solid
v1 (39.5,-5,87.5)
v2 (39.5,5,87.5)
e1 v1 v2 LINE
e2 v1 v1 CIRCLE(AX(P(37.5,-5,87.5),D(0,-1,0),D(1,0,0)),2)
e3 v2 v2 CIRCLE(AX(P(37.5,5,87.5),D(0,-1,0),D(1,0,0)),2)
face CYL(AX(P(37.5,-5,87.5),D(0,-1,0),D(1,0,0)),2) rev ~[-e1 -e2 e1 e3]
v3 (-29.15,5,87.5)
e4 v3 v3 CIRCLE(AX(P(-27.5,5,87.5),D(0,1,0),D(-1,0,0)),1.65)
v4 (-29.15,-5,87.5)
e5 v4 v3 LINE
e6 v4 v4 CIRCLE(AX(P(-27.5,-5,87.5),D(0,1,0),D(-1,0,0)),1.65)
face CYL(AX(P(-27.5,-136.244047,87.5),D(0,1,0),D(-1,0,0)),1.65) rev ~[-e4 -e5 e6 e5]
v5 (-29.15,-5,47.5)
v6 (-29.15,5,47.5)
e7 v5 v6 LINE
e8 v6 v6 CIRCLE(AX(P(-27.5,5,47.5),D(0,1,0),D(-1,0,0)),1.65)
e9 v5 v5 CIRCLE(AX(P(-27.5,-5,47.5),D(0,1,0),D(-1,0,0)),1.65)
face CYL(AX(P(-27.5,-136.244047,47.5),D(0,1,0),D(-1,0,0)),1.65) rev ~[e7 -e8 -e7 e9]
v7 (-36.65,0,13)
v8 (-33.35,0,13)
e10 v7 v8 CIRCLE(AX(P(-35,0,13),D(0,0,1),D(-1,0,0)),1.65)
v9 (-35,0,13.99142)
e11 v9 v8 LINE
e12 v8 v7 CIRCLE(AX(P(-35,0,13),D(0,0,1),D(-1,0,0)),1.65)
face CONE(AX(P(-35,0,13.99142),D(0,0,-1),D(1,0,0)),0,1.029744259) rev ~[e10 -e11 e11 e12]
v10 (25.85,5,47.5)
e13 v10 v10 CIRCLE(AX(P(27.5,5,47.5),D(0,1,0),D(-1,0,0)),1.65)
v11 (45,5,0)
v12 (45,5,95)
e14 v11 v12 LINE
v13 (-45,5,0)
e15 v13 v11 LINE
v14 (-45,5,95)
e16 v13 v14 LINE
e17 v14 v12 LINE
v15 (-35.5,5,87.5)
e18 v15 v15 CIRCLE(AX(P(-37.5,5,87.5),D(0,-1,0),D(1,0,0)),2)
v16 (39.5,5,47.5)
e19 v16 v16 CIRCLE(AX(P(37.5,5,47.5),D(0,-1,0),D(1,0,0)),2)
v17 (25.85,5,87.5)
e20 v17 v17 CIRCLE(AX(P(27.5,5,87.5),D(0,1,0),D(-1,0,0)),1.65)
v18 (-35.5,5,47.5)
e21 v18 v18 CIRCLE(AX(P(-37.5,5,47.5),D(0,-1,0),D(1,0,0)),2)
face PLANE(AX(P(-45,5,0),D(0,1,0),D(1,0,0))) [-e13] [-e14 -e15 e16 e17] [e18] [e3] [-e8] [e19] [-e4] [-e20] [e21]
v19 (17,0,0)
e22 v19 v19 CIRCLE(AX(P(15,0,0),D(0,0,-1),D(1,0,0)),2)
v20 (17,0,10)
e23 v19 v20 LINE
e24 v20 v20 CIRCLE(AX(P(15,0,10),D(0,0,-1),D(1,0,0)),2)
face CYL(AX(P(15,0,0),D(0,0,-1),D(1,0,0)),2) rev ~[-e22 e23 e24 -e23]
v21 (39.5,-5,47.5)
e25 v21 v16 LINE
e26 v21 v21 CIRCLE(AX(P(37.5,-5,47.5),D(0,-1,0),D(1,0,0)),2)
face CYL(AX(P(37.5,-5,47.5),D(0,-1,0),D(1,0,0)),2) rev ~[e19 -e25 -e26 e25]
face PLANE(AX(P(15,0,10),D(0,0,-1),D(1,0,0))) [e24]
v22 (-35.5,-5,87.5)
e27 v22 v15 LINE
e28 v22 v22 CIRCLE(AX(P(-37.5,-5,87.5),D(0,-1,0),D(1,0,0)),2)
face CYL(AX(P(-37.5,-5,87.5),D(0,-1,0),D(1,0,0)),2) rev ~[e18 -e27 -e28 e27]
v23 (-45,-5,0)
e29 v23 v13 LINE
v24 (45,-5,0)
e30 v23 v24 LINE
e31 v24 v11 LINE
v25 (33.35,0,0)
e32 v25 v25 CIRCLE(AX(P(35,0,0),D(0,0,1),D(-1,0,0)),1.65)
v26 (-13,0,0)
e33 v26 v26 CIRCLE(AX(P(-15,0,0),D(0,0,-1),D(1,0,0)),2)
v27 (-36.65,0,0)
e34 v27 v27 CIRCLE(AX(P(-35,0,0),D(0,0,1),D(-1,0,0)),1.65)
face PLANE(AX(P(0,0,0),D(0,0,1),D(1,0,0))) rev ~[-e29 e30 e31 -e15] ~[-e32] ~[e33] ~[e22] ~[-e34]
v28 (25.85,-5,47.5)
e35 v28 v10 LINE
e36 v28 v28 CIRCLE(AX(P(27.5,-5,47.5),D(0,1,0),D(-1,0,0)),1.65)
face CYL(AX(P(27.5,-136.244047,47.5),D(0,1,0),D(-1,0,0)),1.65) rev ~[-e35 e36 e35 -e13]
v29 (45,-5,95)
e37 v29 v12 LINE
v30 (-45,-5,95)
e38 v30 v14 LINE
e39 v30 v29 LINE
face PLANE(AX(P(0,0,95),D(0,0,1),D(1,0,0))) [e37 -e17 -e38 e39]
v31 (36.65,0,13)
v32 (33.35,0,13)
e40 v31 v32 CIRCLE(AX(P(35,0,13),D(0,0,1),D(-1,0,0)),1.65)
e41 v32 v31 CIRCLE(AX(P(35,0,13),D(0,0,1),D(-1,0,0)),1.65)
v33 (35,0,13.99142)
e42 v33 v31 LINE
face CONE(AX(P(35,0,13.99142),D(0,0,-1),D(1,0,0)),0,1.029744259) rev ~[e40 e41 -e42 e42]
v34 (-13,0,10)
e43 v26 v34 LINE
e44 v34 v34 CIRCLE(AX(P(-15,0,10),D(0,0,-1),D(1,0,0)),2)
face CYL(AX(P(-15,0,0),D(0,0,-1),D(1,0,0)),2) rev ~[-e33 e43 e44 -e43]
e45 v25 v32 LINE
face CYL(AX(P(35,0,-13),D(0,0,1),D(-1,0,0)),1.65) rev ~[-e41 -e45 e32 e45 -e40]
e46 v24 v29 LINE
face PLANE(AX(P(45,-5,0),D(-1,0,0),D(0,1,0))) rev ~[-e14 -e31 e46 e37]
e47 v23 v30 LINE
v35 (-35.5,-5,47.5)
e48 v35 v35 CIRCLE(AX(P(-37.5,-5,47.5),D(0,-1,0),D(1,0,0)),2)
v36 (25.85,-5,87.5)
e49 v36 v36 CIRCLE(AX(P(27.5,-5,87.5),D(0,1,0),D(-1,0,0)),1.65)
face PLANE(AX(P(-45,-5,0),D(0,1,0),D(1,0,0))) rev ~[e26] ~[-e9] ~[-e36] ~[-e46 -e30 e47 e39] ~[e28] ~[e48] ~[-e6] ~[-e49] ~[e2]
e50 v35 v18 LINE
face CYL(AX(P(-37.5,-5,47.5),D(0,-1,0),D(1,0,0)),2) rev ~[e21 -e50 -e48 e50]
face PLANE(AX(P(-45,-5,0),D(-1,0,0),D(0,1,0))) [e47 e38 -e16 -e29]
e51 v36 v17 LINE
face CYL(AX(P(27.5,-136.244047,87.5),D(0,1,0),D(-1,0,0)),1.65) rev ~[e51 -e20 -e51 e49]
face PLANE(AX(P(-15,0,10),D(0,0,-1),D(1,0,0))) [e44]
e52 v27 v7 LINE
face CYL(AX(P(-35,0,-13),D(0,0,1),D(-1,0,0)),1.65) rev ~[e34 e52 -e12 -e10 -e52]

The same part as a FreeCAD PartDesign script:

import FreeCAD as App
import Part
import Sketcher
Q = App.Units.Quantity


def add_polygon(sketch, points):
    """Adds a closed chain of lines whose ends are joined by coincident constraints."""
    first, n = sketch.GeometryCount, len(points)
    for a, b in zip(points, points[1:] + points[:1]):
        sketch.addGeometry(Part.LineSegment(App.Vector(*a, 0), App.Vector(*b, 0)), False)
    for i in range(n):
        sketch.addConstraint(Sketcher.Constraint("Coincident", first + i, 2, first + (i + 1) % n, 1))

doc = App.newDocument("Part")
body = doc.addObject("PartDesign::Body", "Body")

# Sketch on XY plane
sketch1 = doc.addObject("Sketcher::SketchObject", "Sketch")
body.addObject(sketch1)
sketch1.AttachmentSupport = (doc.XY_Plane, [""])
sketch1.MapMode = "FlatFace"
add_polygon(sketch1, [(-45, 5), (-45, -5), (45, -5), (45, 5)])  # lines 0-3
sketch1.addConstraint(Sketcher.Constraint("Vertical", 0))
sketch1.addConstraint(Sketcher.Constraint("Horizontal", 1))
sketch1.addConstraint(Sketcher.Constraint("Vertical", 2))
sketch1.addConstraint(Sketcher.Constraint("Horizontal", 3))
sketch1.addConstraint(Sketcher.Constraint("Symmetric", 0, 2, 2, 2, -1, 1))
sketch1.addConstraint(Sketcher.Constraint("DistanceX", 1, 1, 1, 2, Q("90 mm")))
sketch1.addConstraint(Sketcher.Constraint("DistanceY", 0, 2, 0, 1, Q("10 mm")))
pad1 = doc.addObject("PartDesign::Pad", "Pad")
body.addObject(pad1)
pad1.Profile = sketch1
pad1.Length = 95

# Sketch on XY plane
sketch2 = doc.addObject("Sketcher::SketchObject", "Sketch001")
body.addObject(sketch2)
sketch2.AttachmentSupport = (doc.XY_Plane, [""])
sketch2.MapMode = "FlatFace"
sketch2.addGeometry(Part.Circle(App.Vector(-15, 0, 0), App.Vector(0, 0, 1), 2), False)
sketch2.addGeometry(Part.Circle(App.Vector(15, 0, 0), App.Vector(0, 0, 1), 2), False)
sketch2.addConstraint(Sketcher.Constraint("Equal", 0, 1))
sketch2.addConstraint(Sketcher.Constraint("Symmetric", 0, 3, 1, 3, -1, 1))
sketch2.addConstraint(Sketcher.Constraint("PointOnObject", 0, 3, -1))
sketch2.addConstraint(Sketcher.Constraint("Diameter", 0, Q("4 mm")))
sketch2.addConstraint(Sketcher.Constraint("DistanceX", 0, 3, -1, 1, Q("15 mm")))
pocket1 = doc.addObject("PartDesign::Pocket", "Pocket")
body.addObject(pocket1)
pocket1.Profile = sketch2
pocket1.Length = 10
pocket1.Reversed = True

# Sketch on XY plane
sketch3 = doc.addObject("Sketcher::SketchObject", "Sketch002")
body.addObject(sketch3)
sketch3.AttachmentSupport = (doc.XY_Plane, [""])
sketch3.MapMode = "FlatFace"
sketch3.addGeometry(Part.Circle(App.Vector(-35, 0, 0), App.Vector(0, 0, 1), 1.6), False)
sketch3.addGeometry(Part.Circle(App.Vector(35, 0, 0), App.Vector(0, 0, 1), 1.6), False)
sketch3.addConstraint(Sketcher.Constraint("Equal", 0, 1))
sketch3.addConstraint(Sketcher.Constraint("Symmetric", 0, 3, 1, 3, -1, 1))
sketch3.addConstraint(Sketcher.Constraint("PointOnObject", 0, 3, -1))
sketch3.addConstraint(Sketcher.Constraint("Diameter", 0, Q("3.3 mm")))
sketch3.addConstraint(Sketcher.Constraint("DistanceX", 0, 3, -1, 1, Q("35 mm")))
doc.recompute()
hole = doc.addObject("PartDesign::Hole", "Hole")
body.addObject(hole)
hole.Profile = sketch3
hole.ThreadType = "None"
hole.Diameter = 3.3
hole.DepthType = "Dimension"
hole.Depth = 13
hole.DrillPoint = "Angled"
hole.DrillPointAngle = 118
hole.Reversed = True

# Sketch on XZ plane
sketch4 = doc.addObject("Sketcher::SketchObject", "Sketch003")
body.addObject(sketch4)
sketch4.AttachmentSupport = (doc.XZ_Plane, [""])
sketch4.MapMode = "FlatFace"
sketch4.AttachmentOffset = App.Placement(App.Vector(0, 0, 5), App.Rotation())
sketch4.addGeometry(Part.Circle(App.Vector(-37.5, 47.5, 0), App.Vector(0, 0, 1), 2), False)
sketch4.addGeometry(Part.Circle(App.Vector(-37.5, 87.5, 0), App.Vector(0, 0, 1), 2), False)
sketch4.addGeometry(Part.Circle(App.Vector(37.5, 87.5, 0), App.Vector(0, 0, 1), 2), False)
sketch4.addGeometry(Part.Circle(App.Vector(37.5, 47.5, 0), App.Vector(0, 0, 1), 2), False)
sketch4.addConstraint(Sketcher.Constraint("Equal", 0, 1))
sketch4.addConstraint(Sketcher.Constraint("Equal", 1, 2))
sketch4.addConstraint(Sketcher.Constraint("Equal", 2, 3))
sketch4.addConstraint(Sketcher.Constraint("Symmetric", 1, 3, 2, 3, -2))
sketch4.addConstraint(Sketcher.Constraint("Symmetric", 0, 3, 3, 3, -2))
sketch4.addConstraint(Sketcher.Constraint("Vertical", 0, 3, 1, 3))
sketch4.addConstraint(Sketcher.Constraint("Diameter", 0, Q("4 mm")))
sketch4.addConstraint(Sketcher.Constraint("DistanceY", 0, 3, 1, 3, Q("40 mm")))
sketch4.addConstraint(Sketcher.Constraint("DistanceX", 1, 3, 2, 3, Q("75 mm")))
sketch4.addConstraint(Sketcher.Constraint("DistanceY", -1, 1, 0, 3, Q("47.5 mm")))
pocket2 = doc.addObject("PartDesign::Pocket", "Pocket001")
body.addObject(pocket2)
pocket2.Profile = sketch4
pocket2.Type = "ThroughAll"

# Sketch on XZ plane
sketch5 = doc.addObject("Sketcher::SketchObject", "Sketch004")
body.addObject(sketch5)
sketch5.AttachmentSupport = (doc.XZ_Plane, [""])
sketch5.MapMode = "FlatFace"
sketch5.AttachmentOffset = App.Placement(App.Vector(0, 0, 5), App.Rotation())
sketch5.addGeometry(Part.Circle(App.Vector(-27.5, 47.5, 0), App.Vector(0, 0, 1), 1.6), False)
sketch5.addGeometry(Part.Circle(App.Vector(-27.5, 87.5, 0), App.Vector(0, 0, 1), 1.6), False)
sketch5.addGeometry(Part.Circle(App.Vector(27.5, 87.5, 0), App.Vector(0, 0, 1), 1.6), False)
sketch5.addGeometry(Part.Circle(App.Vector(27.5, 47.5, 0), App.Vector(0, 0, 1), 1.6), False)
sketch5.addConstraint(Sketcher.Constraint("Equal", 0, 1))
sketch5.addConstraint(Sketcher.Constraint("Equal", 1, 2))
sketch5.addConstraint(Sketcher.Constraint("Equal", 2, 3))
sketch5.addConstraint(Sketcher.Constraint("Symmetric", 1, 3, 2, 3, -2))
sketch5.addConstraint(Sketcher.Constraint("Symmetric", 0, 3, 3, 3, -2))
sketch5.addConstraint(Sketcher.Constraint("Vertical", 0, 3, 1, 3))
sketch5.addConstraint(Sketcher.Constraint("Diameter", 0, Q("3.3 mm")))
sketch5.addConstraint(Sketcher.Constraint("DistanceY", 0, 3, 1, 3, Q("40 mm")))
sketch5.addConstraint(Sketcher.Constraint("DistanceX", 1, 3, 2, 3, Q("55 mm")))
sketch5.addConstraint(Sketcher.Constraint("DistanceY", -1, 1, 0, 3, Q("47.5 mm")))
doc.recompute()
hole2 = doc.addObject("PartDesign::Hole", "Hole001")
body.addObject(hole2)
hole2.Profile = sketch5
hole2.ThreadType = "None"
hole2.Diameter = 3.3
hole2.DepthType = "ThroughAll"

doc.recompute()
